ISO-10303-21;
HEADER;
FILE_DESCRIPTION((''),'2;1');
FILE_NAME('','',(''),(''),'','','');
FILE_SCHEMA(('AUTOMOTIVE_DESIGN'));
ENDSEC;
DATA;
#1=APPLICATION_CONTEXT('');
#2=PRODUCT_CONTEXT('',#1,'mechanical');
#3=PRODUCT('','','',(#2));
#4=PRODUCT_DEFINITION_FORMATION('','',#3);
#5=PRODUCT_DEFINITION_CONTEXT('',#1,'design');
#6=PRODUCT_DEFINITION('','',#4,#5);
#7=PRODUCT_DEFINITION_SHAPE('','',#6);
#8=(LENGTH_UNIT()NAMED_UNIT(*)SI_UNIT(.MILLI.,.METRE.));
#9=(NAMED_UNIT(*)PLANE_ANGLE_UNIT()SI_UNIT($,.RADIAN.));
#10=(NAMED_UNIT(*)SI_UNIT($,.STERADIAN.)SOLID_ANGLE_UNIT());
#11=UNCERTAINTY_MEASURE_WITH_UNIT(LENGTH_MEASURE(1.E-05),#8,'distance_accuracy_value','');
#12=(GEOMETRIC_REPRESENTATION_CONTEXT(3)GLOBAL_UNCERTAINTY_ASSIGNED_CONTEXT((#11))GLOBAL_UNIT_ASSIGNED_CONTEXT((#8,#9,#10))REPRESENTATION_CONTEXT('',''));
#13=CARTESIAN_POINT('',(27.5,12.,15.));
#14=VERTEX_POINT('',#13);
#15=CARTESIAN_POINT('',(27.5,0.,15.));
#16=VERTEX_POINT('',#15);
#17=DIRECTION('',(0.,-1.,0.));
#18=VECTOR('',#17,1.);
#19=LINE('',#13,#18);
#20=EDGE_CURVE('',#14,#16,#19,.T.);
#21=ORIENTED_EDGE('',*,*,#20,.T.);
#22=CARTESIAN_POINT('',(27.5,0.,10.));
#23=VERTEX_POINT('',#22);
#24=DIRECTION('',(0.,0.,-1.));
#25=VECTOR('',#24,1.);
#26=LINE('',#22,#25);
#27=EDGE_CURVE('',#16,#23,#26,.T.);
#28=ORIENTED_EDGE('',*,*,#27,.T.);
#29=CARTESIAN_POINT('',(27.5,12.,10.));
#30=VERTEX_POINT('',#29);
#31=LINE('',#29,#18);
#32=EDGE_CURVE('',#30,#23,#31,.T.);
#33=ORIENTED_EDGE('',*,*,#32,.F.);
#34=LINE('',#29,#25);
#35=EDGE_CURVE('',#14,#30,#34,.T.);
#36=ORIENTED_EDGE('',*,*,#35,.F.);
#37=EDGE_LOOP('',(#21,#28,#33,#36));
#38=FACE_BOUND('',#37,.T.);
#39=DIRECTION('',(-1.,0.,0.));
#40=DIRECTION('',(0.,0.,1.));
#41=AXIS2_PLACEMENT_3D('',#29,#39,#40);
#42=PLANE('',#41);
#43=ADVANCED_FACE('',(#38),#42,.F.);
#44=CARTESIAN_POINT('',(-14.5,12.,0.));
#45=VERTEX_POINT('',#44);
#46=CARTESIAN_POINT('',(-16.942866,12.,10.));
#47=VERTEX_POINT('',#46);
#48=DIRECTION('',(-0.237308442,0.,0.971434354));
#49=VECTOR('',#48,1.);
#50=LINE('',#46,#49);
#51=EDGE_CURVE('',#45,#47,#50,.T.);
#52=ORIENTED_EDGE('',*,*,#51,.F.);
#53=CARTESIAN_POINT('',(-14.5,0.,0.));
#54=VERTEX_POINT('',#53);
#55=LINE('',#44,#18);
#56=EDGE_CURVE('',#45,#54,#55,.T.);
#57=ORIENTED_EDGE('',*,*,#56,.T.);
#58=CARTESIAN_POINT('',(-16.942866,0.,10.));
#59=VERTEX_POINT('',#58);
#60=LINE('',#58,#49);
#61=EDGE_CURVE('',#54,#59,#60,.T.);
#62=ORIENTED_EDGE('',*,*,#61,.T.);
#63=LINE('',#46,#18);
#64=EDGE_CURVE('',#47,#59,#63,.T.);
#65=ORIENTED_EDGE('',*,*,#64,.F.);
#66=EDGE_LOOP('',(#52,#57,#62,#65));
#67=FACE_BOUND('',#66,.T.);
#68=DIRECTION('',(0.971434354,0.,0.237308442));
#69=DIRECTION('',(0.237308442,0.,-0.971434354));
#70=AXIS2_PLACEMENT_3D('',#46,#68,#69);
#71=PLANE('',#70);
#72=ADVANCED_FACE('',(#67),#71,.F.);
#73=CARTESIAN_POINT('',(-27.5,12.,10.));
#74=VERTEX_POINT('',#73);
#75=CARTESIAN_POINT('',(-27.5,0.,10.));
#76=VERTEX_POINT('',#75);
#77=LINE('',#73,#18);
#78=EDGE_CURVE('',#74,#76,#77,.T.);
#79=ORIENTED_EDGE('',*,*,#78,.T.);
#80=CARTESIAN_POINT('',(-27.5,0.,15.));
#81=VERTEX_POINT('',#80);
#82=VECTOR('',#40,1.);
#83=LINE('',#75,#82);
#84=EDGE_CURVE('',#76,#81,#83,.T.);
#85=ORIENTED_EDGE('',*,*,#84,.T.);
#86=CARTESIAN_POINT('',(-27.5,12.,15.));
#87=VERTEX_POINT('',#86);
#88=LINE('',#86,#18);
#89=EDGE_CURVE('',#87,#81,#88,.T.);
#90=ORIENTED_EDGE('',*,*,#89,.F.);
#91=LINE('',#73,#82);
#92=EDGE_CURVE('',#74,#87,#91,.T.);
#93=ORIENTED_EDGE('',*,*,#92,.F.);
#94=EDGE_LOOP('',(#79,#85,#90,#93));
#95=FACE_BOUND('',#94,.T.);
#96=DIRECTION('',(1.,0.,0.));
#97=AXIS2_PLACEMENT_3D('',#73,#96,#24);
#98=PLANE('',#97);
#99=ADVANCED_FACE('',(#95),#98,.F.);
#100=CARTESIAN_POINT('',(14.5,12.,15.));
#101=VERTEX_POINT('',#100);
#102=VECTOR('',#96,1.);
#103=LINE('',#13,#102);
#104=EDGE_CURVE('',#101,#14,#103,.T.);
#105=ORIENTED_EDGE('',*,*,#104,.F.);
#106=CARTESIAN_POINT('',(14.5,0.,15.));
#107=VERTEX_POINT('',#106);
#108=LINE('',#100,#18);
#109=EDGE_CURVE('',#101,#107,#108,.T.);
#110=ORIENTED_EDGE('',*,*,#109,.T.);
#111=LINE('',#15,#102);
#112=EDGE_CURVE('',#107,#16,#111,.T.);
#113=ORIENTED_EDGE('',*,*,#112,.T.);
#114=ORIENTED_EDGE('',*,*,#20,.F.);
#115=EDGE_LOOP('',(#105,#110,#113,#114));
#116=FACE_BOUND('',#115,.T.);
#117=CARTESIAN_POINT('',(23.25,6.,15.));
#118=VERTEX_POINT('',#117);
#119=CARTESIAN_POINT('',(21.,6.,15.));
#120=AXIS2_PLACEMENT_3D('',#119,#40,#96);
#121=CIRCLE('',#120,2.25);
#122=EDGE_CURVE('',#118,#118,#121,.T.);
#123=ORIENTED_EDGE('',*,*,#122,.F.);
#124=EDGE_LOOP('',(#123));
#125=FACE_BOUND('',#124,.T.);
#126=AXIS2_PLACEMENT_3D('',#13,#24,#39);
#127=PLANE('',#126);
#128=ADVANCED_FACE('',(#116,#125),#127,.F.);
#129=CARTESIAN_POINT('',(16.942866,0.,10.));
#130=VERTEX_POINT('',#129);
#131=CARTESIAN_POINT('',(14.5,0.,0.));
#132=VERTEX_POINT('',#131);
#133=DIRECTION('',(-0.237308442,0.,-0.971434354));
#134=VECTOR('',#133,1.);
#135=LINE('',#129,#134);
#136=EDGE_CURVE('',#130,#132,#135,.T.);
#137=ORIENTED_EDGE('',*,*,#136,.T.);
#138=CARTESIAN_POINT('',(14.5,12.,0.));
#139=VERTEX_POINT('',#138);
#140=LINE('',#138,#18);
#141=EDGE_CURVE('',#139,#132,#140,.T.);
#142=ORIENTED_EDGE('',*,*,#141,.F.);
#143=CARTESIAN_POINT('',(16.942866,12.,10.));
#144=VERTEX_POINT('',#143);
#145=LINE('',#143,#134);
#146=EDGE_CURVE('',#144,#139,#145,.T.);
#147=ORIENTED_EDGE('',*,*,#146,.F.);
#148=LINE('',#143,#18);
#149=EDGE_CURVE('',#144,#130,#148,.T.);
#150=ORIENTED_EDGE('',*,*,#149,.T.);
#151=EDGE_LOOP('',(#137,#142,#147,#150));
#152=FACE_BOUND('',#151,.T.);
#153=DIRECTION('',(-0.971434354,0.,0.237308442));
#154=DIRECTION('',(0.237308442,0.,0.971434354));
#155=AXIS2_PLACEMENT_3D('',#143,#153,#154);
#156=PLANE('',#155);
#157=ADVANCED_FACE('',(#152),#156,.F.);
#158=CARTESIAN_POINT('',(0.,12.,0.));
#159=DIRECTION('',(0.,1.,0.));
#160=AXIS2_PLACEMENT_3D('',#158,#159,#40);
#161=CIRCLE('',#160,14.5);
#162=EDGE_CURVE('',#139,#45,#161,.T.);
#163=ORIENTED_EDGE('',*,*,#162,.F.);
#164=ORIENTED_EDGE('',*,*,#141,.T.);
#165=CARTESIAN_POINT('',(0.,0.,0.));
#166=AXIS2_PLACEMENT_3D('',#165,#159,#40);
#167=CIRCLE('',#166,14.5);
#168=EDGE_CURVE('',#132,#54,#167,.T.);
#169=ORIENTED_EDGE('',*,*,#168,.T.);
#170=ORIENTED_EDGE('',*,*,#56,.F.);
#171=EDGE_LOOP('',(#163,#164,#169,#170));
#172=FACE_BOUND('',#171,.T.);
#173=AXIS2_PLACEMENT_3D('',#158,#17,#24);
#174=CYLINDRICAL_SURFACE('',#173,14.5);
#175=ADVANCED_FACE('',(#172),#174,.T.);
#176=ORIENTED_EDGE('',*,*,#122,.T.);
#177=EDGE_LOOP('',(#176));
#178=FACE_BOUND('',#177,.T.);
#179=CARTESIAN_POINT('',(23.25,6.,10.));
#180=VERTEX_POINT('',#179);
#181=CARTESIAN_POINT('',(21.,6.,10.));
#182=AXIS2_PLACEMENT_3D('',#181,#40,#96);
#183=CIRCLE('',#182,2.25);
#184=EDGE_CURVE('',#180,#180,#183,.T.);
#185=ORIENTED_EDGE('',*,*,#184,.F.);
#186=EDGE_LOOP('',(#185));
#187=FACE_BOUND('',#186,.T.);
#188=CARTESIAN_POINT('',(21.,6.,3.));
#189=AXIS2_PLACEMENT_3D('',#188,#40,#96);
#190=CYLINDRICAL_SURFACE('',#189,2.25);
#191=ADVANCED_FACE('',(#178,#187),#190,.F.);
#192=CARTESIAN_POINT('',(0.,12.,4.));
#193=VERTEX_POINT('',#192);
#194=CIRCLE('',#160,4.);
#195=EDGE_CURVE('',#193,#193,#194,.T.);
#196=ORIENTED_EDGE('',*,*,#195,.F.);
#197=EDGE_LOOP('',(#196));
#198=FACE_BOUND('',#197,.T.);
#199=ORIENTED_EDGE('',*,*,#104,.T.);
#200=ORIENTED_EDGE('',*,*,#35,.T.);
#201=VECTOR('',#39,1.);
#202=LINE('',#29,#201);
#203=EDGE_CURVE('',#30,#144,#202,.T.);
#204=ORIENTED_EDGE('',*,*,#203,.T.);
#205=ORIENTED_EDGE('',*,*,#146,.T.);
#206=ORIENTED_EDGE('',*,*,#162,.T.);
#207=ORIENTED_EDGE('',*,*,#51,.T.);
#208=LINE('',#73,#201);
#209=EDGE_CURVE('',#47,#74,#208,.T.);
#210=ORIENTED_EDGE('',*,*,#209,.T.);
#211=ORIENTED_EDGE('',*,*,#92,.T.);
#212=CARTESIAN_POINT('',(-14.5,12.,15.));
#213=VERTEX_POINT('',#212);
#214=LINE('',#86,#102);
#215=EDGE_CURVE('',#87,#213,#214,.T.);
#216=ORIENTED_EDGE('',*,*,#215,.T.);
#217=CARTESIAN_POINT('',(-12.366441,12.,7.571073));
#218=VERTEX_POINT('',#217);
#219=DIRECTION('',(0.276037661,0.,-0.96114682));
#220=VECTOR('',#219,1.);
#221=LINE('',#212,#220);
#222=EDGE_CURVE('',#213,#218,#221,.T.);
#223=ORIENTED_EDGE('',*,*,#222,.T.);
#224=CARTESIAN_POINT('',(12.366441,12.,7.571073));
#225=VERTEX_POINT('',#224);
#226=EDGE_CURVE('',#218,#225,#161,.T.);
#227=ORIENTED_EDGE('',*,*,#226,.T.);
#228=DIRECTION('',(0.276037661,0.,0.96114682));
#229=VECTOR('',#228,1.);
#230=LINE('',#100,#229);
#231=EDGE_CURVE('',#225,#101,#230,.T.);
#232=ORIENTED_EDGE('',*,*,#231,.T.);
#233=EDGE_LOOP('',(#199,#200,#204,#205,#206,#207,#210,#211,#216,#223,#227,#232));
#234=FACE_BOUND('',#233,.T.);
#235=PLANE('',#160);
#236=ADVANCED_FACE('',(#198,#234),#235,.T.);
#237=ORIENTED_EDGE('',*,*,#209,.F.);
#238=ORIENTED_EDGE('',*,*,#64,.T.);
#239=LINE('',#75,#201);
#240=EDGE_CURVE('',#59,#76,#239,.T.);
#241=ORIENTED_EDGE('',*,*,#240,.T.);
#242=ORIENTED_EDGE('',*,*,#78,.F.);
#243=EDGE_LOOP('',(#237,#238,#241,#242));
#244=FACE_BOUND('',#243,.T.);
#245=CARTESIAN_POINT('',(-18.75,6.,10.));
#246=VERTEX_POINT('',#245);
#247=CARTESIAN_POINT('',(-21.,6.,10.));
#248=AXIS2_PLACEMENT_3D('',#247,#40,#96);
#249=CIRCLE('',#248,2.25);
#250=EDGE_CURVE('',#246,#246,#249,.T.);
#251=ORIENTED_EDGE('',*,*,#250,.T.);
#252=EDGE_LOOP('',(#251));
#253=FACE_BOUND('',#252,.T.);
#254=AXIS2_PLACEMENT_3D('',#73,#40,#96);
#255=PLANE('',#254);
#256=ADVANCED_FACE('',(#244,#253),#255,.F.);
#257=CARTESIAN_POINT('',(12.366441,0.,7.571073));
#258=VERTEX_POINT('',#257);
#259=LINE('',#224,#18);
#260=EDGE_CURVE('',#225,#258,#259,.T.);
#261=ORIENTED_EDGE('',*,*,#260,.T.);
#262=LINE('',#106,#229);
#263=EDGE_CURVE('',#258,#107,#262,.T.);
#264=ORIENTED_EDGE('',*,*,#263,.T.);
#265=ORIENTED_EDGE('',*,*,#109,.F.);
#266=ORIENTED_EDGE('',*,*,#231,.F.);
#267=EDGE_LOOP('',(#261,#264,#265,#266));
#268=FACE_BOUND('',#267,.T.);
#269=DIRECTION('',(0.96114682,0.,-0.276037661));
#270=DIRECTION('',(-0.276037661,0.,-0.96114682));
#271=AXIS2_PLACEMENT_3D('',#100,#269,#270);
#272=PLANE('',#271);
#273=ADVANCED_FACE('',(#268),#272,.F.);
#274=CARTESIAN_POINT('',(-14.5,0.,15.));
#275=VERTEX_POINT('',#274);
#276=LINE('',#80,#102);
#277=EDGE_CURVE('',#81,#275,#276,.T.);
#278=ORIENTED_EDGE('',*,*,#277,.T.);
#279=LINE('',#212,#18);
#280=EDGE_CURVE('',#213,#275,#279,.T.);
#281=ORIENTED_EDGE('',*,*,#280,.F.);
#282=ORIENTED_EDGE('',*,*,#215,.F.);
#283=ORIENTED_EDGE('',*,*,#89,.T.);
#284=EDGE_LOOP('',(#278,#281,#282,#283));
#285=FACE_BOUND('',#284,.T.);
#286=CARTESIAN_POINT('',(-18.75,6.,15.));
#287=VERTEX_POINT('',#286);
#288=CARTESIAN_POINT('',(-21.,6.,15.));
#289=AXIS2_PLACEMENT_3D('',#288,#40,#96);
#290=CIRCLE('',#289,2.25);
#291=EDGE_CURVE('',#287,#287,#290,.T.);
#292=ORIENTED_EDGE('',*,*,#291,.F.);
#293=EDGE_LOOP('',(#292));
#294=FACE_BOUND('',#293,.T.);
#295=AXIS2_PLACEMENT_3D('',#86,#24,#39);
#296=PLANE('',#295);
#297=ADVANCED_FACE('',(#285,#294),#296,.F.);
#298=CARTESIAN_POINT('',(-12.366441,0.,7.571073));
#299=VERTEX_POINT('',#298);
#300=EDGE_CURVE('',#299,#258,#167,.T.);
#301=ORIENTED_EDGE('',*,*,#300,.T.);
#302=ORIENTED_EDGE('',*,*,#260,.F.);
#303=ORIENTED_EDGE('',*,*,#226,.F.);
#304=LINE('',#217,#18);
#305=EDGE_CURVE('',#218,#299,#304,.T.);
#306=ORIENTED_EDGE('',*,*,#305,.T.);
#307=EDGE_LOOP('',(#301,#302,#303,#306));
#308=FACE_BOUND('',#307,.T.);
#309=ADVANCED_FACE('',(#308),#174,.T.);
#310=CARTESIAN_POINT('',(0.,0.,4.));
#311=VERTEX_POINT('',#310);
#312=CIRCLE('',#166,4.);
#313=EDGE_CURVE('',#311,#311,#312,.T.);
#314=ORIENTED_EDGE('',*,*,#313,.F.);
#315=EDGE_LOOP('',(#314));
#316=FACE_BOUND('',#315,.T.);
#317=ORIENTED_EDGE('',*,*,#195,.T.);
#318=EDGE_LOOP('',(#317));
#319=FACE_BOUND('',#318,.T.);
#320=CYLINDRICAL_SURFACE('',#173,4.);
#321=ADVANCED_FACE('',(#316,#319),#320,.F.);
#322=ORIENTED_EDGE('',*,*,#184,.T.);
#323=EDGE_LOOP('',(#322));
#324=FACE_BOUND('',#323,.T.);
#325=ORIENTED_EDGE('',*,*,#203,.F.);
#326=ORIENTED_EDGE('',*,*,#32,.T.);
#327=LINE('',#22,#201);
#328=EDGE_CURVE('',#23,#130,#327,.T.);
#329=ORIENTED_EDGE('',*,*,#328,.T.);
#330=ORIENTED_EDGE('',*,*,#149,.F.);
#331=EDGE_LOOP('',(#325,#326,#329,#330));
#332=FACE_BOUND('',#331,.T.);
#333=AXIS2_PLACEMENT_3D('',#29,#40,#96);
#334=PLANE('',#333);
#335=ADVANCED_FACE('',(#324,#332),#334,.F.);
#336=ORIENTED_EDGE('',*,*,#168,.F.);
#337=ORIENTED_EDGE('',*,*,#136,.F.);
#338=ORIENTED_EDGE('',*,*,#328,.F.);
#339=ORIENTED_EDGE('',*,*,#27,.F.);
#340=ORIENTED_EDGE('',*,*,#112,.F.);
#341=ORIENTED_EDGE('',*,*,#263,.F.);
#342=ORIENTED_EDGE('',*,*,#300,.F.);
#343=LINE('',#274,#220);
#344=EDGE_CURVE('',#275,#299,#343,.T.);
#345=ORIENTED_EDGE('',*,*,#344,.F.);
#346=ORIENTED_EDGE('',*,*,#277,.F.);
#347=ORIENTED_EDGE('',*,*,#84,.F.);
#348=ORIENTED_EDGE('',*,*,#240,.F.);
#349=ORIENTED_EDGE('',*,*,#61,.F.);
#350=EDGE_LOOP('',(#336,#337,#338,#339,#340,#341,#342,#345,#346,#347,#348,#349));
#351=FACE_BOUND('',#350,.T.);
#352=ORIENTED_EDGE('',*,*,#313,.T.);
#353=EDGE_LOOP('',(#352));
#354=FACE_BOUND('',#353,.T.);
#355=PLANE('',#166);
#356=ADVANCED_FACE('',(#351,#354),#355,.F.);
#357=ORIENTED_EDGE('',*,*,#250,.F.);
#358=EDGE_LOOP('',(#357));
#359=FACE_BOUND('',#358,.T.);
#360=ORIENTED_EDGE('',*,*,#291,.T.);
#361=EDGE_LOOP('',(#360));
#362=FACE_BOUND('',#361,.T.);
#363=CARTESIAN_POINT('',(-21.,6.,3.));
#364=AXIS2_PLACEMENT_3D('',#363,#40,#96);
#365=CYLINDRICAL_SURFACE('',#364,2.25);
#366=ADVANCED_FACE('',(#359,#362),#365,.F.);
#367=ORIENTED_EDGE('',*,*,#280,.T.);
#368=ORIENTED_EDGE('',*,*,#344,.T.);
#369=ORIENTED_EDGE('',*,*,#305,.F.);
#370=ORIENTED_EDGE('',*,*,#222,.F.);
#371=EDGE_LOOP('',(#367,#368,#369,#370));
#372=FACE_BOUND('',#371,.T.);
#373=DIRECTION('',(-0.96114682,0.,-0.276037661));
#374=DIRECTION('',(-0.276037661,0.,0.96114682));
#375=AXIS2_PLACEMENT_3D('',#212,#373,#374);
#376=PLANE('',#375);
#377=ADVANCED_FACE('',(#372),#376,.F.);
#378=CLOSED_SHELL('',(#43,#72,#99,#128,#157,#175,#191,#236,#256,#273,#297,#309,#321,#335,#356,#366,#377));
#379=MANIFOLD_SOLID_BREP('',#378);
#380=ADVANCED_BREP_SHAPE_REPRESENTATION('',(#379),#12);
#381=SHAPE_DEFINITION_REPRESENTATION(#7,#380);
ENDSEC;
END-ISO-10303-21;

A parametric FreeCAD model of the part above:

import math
import FreeCAD as App
import Part
import Sketcher

V = App.Vector
Q = App.Units.Quantity

doc = App.newDocument("Part")
body = doc.addObject("PartDesign::Body", "Body")

# Sketch on XZ plane
sketch1 = body.newObject("Sketcher::SketchObject", "Sketch")
sketch1.AttachmentSupport = (doc.getObject("XZ_Plane"), [""])
sketch1.MapMode = "FlatFace"
sketch1.addGeometry(Part.LineSegment(V(-27.5, 10, 0), V(-27.5, 15, 0)), False)
sketch1.addGeometry(Part.LineSegment(V(-27.5, 15, 0), V(-14.5, 15, 0)), False)
sketch1.addGeometry(Part.LineSegment(V(-14.5, 15, 0), V(-12.4, 7.6, 0)), False)
sketch1.addGeometry(Part.ArcOfCircle(Part.Circle(V(0, 0, 0), V(0, 0, 1), 14.5), math.radians(31), math.radians(149)), False)
sketch1.addGeometry(Part.LineSegment(V(12.4, 7.6, 0), V(14.5, 15, 0)), False)
sketch1.addGeometry(Part.LineSegment(V(14.5, 15, 0), V(27.5, 15, 0)), False)
sketch1.addGeometry(Part.LineSegment(V(27.5, 15, 0), V(27.5, 10, 0)), False)
sketch1.addGeometry(Part.LineSegment(V(27.5, 10, 0), V(16.9, 10, 0)), False)
sketch1.addGeometry(Part.LineSegment(V(16.9, 10, 0), V(14.5, 0, 0)), False)
sketch1.addGeometry(Part.ArcOfCircle(Part.Circle(V(0, 0, 0), V(0, 0, 1), 14.5), math.radians(180), math.radians(360)), False)
sketch1.addGeometry(Part.LineSegment(V(-14.5, 0, 0), V(-16.9, 10, 0)), False)
sketch1.addGeometry(Part.LineSegment(V(-16.9, 10, 0), V(-27.5, 10, 0)), False)
sketch1.addGeometry(Part.Circle(V(0, 0, 0), V(0, 0, 1), 4), False)
sketch1.addConstraint(Sketcher.Constraint("Coincident", 0, 2, 1, 1))
sketch1.addConstraint(Sketcher.Constraint("Coincident", 1, 2, 2, 1))
sketch1.addConstraint(Sketcher.Constraint("Coincident", 2, 2, 3, 2))
sketch1.addConstraint(Sketcher.Constraint("Coincident", 3, 1, 4, 1))
sketch1.addConstraint(Sketcher.Constraint("Coincident", 4, 2, 5, 1))
sketch1.addConstraint(Sketcher.Constraint("Coincident", 5, 2, 6, 1))
sketch1.addConstraint(Sketcher.Constraint("Coincident", 6, 2, 7, 1))
sketch1.addConstraint(Sketcher.Constraint("Coincident", 7, 2, 8, 1))
sketch1.addConstraint(Sketcher.Constraint("Coincident", 8, 2, 9, 2))
sketch1.addConstraint(Sketcher.Constraint("Coincident", 9, 1, 10, 1))
sketch1.addConstraint(Sketcher.Constraint("Coincident", 10, 2, 11, 1))
sketch1.addConstraint(Sketcher.Constraint("Coincident", 11, 2, 0, 1))
sketch1.addConstraint(Sketcher.Constraint("Vertical", 0))
sketch1.addConstraint(Sketcher.Constraint("Horizontal", 1))
sketch1.addConstraint(Sketcher.Constraint("Horizontal", 5))
sketch1.addConstraint(Sketcher.Constraint("Vertical", 6))
sketch1.addConstraint(Sketcher.Constraint("Horizontal", 7))
sketch1.addConstraint(Sketcher.Constraint("Horizontal", 11))
sketch1.addConstraint(Sketcher.Constraint("Coincident", 3, 3, -1, 1))
sketch1.addConstraint(Sketcher.Constraint("Coincident", 9, 3, -1, 1))
sketch1.addConstraint(Sketcher.Constraint("Coincident", 12, 3, -1, 1))
sketch1.addConstraint(Sketcher.Constraint("Equal", 3, 9))
sketch1.addConstraint(Sketcher.Constraint("Symmetric", 1, 2, 4, 2, -2))
sketch1.addConstraint(Sketcher.Constraint("Symmetric", 7, 2, 10, 2, -2))
sketch1.addConstraint(Sketcher.Constraint("PointOnObject", 8, 2, -1))
sketch1.addConstraint(Sketcher.Constraint("PointOnObject", 9, 1, -1))
sketch1.addConstraint(Sketcher.Constraint("Horizontal", 2, 2, 3, 1))
sketch1.addConstraint(Sketcher.Constraint("Vertical", 4, 2, 8, 2))
sketch1.addConstraint(Sketcher.Constraint("Equal", 1, 5))
sketch1.addConstraint(Sketcher.Constraint("Diameter", 12, Q("8 mm")))
sketch1.addConstraint(Sketcher.Constraint("Radius", 3, Q("14.5 mm")))
sketch1.addConstraint(Sketcher.Constraint("DistanceX", 1, 1, 1, 2, Q("13 mm")))
sketch1.addConstraint(Sketcher.Constraint("DistanceY", 0, 1, 0, 2, Q("5 mm")))
sketch1.addConstraint(Sketcher.Constraint("DistanceY", -1, 1, 0, 2, Q("15 mm")))
sketch1.addConstraint(Sketcher.Constraint("DistanceX", 7, 2, 7, 1, Q("10.557134 mm")))
sketch1.addConstraint(Sketcher.Constraint("DistanceX", 2, 2, -1, 1, Q("12.366441 mm")))
pad1 = body.newObject("PartDesign::Pad", "Pad")
pad1.Profile = sketch1
pad1.Length = 12
pad1.Reversed = True

# Sketch on XY plane
sketch2 = body.newObject("Sketcher::SketchObject", "Sketch001")
sketch2.AttachmentSupport = (doc.getObject("XY_Plane"), [""])
sketch2.MapMode = "FlatFace"
sketch2.AttachmentOffset = App.Placement(V(0, 0, 15), App.Rotation())
sketch2.addGeometry(Part.Circle(V(-21, 6, 0), V(0, 0, 1), 2.2), False)
sketch2.addGeometry(Part.Circle(V(21, 6, 0), V(0, 0, 1), 2.2), False)
sketch2.addConstraint(Sketcher.Constraint("Equal", 0, 1))
sketch2.addConstraint(Sketcher.Constraint("Symmetric", 0, 3, 1, 3, -2))
sketch2.addConstraint(Sketcher.Constraint("Diameter", 0, Q("4.5 mm")))
sketch2.addConstraint(Sketcher.Constraint("DistanceX", 0, 3, -1, 1, Q("21 mm")))
sketch2.addConstraint(Sketcher.Constraint("DistanceY", -1, 1, 0, 3, Q("6 mm")))
pocket1 = body.newObject("PartDesign::Pocket", "Pocket")
pocket1.Profile = sketch2
pocket1.Length = 12

doc.recompute()
